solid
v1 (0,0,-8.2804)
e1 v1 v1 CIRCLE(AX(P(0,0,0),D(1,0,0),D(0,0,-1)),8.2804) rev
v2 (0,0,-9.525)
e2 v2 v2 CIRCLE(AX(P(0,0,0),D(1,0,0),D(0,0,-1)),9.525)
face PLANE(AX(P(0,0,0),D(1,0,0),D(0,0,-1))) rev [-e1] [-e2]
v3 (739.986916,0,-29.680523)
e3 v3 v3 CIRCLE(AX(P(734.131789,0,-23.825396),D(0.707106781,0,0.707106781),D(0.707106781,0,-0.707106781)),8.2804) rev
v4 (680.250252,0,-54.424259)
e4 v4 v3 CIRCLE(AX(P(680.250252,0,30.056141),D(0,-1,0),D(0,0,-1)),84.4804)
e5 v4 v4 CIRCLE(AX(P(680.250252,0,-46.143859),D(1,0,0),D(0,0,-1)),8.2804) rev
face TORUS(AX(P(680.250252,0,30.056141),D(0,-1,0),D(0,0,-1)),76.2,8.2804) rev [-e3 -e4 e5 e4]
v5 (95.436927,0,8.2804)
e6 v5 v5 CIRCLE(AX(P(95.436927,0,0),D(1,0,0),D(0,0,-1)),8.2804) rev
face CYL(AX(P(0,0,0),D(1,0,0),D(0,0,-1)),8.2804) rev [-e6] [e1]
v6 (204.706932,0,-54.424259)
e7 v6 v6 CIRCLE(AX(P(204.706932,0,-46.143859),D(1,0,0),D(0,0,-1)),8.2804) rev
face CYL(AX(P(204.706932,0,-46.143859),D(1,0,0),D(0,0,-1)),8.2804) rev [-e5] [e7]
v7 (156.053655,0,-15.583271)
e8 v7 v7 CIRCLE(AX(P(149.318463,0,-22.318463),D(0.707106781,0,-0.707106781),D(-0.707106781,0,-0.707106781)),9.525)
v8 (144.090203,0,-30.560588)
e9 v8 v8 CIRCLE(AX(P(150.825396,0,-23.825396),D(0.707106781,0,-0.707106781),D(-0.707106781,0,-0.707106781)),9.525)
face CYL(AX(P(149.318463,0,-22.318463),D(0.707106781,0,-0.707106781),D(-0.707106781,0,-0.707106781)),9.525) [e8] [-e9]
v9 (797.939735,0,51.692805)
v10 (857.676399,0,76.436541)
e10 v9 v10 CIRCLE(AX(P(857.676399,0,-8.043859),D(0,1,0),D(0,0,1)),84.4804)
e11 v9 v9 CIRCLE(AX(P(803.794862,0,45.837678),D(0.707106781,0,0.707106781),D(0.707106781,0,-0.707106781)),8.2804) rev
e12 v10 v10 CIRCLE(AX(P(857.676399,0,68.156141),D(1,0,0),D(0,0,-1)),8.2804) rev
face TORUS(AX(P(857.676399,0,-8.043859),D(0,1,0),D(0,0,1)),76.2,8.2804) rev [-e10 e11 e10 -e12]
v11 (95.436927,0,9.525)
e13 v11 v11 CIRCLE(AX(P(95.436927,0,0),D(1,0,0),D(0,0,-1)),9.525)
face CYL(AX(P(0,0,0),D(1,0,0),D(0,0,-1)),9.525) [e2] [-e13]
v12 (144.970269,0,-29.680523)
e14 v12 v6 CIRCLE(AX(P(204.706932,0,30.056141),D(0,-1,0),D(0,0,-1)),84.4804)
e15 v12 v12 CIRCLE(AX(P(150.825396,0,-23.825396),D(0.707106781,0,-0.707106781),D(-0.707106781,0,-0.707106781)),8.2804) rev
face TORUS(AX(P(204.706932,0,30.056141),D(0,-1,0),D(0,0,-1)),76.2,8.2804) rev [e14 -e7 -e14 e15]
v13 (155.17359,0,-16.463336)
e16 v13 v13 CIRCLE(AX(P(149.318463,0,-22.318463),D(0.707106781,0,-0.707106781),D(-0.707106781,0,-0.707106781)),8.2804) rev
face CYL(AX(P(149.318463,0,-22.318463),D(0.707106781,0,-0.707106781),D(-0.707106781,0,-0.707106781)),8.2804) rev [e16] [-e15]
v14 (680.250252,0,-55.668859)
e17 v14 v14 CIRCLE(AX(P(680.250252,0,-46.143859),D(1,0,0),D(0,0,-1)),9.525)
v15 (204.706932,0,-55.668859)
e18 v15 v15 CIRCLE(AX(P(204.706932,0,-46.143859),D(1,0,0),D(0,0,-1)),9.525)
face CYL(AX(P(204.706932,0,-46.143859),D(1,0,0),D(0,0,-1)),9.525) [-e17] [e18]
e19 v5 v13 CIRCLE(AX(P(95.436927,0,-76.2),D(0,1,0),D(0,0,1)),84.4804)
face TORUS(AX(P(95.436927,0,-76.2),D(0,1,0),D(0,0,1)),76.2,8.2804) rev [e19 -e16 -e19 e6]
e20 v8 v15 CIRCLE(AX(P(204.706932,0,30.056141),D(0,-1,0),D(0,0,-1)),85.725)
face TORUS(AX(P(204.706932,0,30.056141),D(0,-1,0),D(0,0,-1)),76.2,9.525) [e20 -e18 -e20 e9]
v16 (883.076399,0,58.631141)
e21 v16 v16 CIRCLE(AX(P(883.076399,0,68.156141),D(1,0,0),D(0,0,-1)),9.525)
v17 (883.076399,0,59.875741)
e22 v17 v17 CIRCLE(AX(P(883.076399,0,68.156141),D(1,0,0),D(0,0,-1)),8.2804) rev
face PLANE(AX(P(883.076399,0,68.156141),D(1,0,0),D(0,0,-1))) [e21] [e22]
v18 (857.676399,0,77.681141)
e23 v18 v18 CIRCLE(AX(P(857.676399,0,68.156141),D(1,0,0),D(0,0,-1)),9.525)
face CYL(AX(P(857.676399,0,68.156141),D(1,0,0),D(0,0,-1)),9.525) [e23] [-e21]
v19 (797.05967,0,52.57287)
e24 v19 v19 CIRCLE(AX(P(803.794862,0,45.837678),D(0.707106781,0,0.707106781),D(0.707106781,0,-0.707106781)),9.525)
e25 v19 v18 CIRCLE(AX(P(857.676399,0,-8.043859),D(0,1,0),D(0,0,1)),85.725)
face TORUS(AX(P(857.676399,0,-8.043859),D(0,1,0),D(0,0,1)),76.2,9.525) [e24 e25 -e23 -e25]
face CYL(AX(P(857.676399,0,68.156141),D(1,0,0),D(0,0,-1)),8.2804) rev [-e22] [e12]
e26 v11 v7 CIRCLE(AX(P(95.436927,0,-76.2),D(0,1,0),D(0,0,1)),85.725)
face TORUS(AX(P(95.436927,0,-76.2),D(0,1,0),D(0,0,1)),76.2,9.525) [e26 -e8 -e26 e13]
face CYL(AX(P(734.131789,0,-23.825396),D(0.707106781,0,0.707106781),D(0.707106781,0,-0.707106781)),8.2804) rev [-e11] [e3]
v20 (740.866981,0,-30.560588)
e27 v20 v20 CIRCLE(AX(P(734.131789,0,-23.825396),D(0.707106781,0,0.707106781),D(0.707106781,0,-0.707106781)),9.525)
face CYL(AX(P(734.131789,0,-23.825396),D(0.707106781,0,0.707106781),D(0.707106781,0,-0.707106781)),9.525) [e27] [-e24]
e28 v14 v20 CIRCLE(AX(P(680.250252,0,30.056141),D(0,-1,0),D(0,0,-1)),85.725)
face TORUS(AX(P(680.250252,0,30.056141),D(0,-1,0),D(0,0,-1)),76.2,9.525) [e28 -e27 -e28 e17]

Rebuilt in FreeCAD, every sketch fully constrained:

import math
import FreeCAD as App
import Part
import Sketcher
Q = App.Units.Quantity

doc = App.newDocument("Part")
body = doc.addObject("PartDesign::Body", "Body")

# Sketch on YZ plane
sketch1 = body.newObject("Sketcher::SketchObject", "Sketch")
sketch1.AttachmentSupport = (doc.getObject("YZ_Plane"), [""])
sketch1.MapMode = "FlatFace"
sketch1.addGeometry([
    Part.Circle(App.Vector(0, 0, 0), App.Vector(0, 0, 1), 10),
    Part.Circle(App.Vector(0, 0, 0), App.Vector(0, 0, 1), 8),
], False)
sketch1.addConstraint([
    Sketcher.Constraint("Coincident", 0, 3, -1, 1),
    Sketcher.Constraint("Coincident", 1, 3, -1, 1),
    Sketcher.Constraint("Diameter", 0, Q("0.75 in")),
    Sketcher.Constraint("Diameter", 1, Q("0.652 in")),
])

# Sketch on XZ plane
sketch2 = body.newObject("Sketcher::SketchObject", "Sketch001")
sketch2.AttachmentSupport = (doc.getObject("XZ_Plane"), [""])
sketch2.MapMode = "FlatFace"
sketch2.addGeometry([
    Part.LineSegment(App.Vector(0, 0, 0), App.Vector(95.4, 0, 0)),  # 0
    Part.ArcOfCircle(Part.Circle(App.Vector(95.4, -76.2, 0), App.Vector(0, 0, 1), 76.2), math.radians(45), math.radians(90)),  # 1
    Part.LineSegment(App.Vector(149.3, -22.3, 0), App.Vector(150.8, -23.8, 0)),  # 2
    Part.ArcOfCircle(Part.Circle(App.Vector(204.7, 30.1, 0), App.Vector(0, 0, 1), 76.2), math.radians(-135), math.radians(-90)),  # 3
    Part.LineSegment(App.Vector(204.7, -46.1, 0), App.Vector(680.3, -46.1, 0)),  # 4
    Part.ArcOfCircle(Part.Circle(App.Vector(680.3, 30.1, 0), App.Vector(0, 0, 1), 76.2), math.radians(-90), math.radians(-45)),  # 5
    Part.LineSegment(App.Vector(734.1, -23.8, 0), App.Vector(803.8, 45.8, 0)),  # 6
    Part.ArcOfCircle(Part.Circle(App.Vector(857.7, -8, 0), App.Vector(0, 0, 1), 76.2), math.radians(90), math.radians(135)),  # 7
    Part.LineSegment(App.Vector(857.7, 68.2, 0), App.Vector(883.1, 68.2, 0)),  # 8
], False)
sketch2.addConstraint([
    Sketcher.Constraint("Tangent", 0, 2, 1, 2),
    Sketcher.Constraint("Tangent", 1, 1, 2, 1),
    Sketcher.Constraint("Tangent", 2, 2, 3, 1),
    Sketcher.Constraint("Tangent", 3, 2, 4, 1),
    Sketcher.Constraint("Tangent", 4, 2, 5, 1),
    Sketcher.Constraint("Tangent", 5, 2, 6, 1),
    Sketcher.Constraint("Tangent", 6, 2, 7, 2),
    Sketcher.Constraint("Tangent", 7, 1, 8, 1),
    Sketcher.Constraint("Horizontal", 0),
    Sketcher.Constraint("Horizontal", 4),
    Sketcher.Constraint("Horizontal", 8),
    Sketcher.Constraint("Coincident", 0, 1, -1, 1),
    Sketcher.Constraint("Equal", 1, 3),
    Sketcher.Constraint("Equal", 3, 5),
    Sketcher.Constraint("Equal", 5, 7),
    Sketcher.Constraint("Perpendicular", 2, 6),
    Sketcher.Constraint("Horizontal", 2, 2, 5, 2),
    Sketcher.Constraint("Radius", 1, Q("3 in")),
    Sketcher.Constraint("DistanceX", 8, 1, 8, 2, Q("1 in")),
    Sketcher.Constraint("DistanceY", 7, 3, 5, 3, Q("1.5 in")),
    Sketcher.Constraint("DistanceX", 4, 1, 4, 2, Q("475.54332 mm")),
    Sketcher.Constraint("DistanceX", -1, 1, 7, 3, Q("857.676399 mm")),
    Sketcher.Constraint("DistanceX", 0, 1, 0, 2, Q("95.436927 mm")),
])
doc.recompute()

additivepipe = body.newObject("PartDesign::AdditivePipe", "AdditivePipe")
additivepipe.Profile = sketch1
additivepipe.Spine = (sketch2, ["Edge1", "Edge2", "Edge3", "Edge4", "Edge5", "Edge6", "Edge7", "Edge8", "Edge9"])

doc.recompute()
